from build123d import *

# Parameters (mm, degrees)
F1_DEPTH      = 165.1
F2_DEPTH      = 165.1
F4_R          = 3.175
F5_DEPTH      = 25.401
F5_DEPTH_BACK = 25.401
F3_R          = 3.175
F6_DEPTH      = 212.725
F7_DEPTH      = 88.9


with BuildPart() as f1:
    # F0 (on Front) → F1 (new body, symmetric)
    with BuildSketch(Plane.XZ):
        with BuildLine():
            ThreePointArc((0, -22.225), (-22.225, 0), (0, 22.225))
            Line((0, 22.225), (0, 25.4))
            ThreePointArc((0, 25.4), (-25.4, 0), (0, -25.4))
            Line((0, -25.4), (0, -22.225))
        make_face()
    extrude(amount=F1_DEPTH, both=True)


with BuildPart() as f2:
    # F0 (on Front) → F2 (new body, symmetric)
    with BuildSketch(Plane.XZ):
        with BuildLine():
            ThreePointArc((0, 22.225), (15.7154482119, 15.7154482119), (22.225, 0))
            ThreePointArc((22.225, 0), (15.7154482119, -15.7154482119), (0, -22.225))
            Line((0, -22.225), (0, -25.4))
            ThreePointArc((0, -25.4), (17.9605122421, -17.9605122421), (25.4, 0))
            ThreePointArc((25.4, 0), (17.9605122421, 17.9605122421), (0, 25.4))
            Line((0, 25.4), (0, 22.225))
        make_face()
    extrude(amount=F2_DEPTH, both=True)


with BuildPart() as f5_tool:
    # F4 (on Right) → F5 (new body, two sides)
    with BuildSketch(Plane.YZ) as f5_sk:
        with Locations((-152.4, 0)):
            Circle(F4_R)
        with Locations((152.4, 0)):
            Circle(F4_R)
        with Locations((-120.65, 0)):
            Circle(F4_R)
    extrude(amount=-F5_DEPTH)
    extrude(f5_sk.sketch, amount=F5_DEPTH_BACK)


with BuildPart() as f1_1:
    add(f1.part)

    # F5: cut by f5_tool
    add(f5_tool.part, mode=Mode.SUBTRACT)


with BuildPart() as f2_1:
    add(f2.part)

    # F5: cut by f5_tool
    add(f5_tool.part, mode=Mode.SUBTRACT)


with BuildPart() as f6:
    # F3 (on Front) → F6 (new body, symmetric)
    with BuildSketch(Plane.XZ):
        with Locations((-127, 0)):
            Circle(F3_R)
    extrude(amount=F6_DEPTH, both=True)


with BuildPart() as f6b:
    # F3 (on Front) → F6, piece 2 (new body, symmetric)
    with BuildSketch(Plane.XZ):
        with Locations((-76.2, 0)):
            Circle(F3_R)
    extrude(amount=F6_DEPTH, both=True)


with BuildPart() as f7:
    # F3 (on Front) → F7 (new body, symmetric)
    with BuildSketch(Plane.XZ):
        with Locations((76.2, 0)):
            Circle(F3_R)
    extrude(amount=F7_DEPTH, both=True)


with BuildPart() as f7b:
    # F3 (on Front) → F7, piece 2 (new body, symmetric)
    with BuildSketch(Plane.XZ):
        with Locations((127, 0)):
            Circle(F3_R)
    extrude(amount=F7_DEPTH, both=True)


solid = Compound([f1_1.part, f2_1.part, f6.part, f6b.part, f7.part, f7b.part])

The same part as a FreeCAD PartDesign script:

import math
import FreeCAD as App
import Part
import Sketcher
Q = App.Units.Quantity

doc = App.newDocument("Part")
body = doc.addObject("PartDesign::Body", "Body")

# Sketch on XZ plane
sketch1 = body.newObject("Sketcher::SketchObject", "Sketch")
sketch1.AttachmentSupport = (doc.getObject("XZ_Plane"), [""])
sketch1.MapMode = "FlatFace"
sketch1.addGeometry(Part.ArcOfCircle(Part.Circle(App.Vector(0, 0, 0), App.Vector(0, 0, 1), 22.2), math.radians(90), math.radians(270)), False)
sketch1.addGeometry(Part.LineSegment(App.Vector(0, 22.2, 0), App.Vector(0, 25.4, 0)), False)
sketch1.addGeometry(Part.ArcOfCircle(Part.Circle(App.Vector(0, 0, 0), App.Vector(0, 0, 1), 25.4), math.radians(90), math.radians(270)), False)
sketch1.addGeometry(Part.LineSegment(App.Vector(0, -25.4, 0), App.Vector(0, -22.2, 0)), False)
sketch1.addConstraint(Sketcher.Constraint("Coincident", 0, 1, 1, 1))
sketch1.addConstraint(Sketcher.Constraint("Coincident", 1, 2, 2, 1))
sketch1.addConstraint(Sketcher.Constraint("Coincident", 2, 2, 3, 1))
sketch1.addConstraint(Sketcher.Constraint("Coincident", 3, 2, 0, 2))
sketch1.addConstraint(Sketcher.Constraint("Vertical", 1))
sketch1.addConstraint(Sketcher.Constraint("Vertical", 3))
sketch1.addConstraint(Sketcher.Constraint("Coincident", 0, 3, -1, 1))
sketch1.addConstraint(Sketcher.Constraint("Coincident", 2, 3, -1, 1))
sketch1.addConstraint(Sketcher.Constraint("PointOnObject", 0, 1, -2))
sketch1.addConstraint(Sketcher.Constraint("PointOnObject", 2, 2, -2))
sketch1.addConstraint(Sketcher.Constraint("Radius", 2, Q("1 in")))
sketch1.addConstraint(Sketcher.Constraint("Radius", 0, Q("0.875 in")))
pad1 = body.newObject("PartDesign::Pad", "Pad")
pad1.Profile = sketch1
pad1.Length = Q("13 in")
pad1.Midplane = True
body2 = doc.addObject("PartDesign::Body", "Body001")

# Sketch on XZ plane
sketch2 = body2.newObject("Sketcher::SketchObject", "Sketch001")
sketch2.AttachmentSupport = (doc.getObject("XZ_Plane001"), [""])
sketch2.MapMode = "FlatFace"
sketch2.addGeometry(Part.ArcOfCircle(Part.Circle(App.Vector(0, 0, 0), App.Vector(0, 0, 1), 22.2), math.radians(0), math.radians(90)), False)
sketch2.addGeometry(Part.ArcOfCircle(Part.Circle(App.Vector(0, 0, 0), App.Vector(0, 0, 1), 22.2), math.radians(-90), math.radians(0)), False)
sketch2.addGeometry(Part.LineSegment(App.Vector(0, -22.2, 0), App.Vector(0, -25.4, 0)), False)
sketch2.addGeometry(Part.ArcOfCircle(Part.Circle(App.Vector(0, 0, 0), App.Vector(0, 0, 1), 25.4), math.radians(-90), math.radians(0)), False)
sketch2.addGeometry(Part.ArcOfCircle(Part.Circle(App.Vector(0, 0, 0), App.Vector(0, 0, 1), 25.4), math.radians(0), math.radians(90)), False)
sketch2.addGeometry(Part.LineSegment(App.Vector(0, 25.4, 0), App.Vector(0, 22.2, 0)), False)
sketch2.addConstraint(Sketcher.Constraint("Tangent", 0, 1, 1, 2))
sketch2.addConstraint(Sketcher.Constraint("Coincident", 1, 1, 2, 1))
sketch2.addConstraint(Sketcher.Constraint("Coincident", 2, 2, 3, 1))
sketch2.addConstraint(Sketcher.Constraint("Tangent", 3, 2, 4, 1))
sketch2.addConstraint(Sketcher.Constraint("Coincident", 4, 2, 5, 1))
sketch2.addConstraint(Sketcher.Constraint("Coincident", 5, 2, 0, 2))
sketch2.addConstraint(Sketcher.Constraint("Vertical", 2))
sketch2.addConstraint(Sketcher.Constraint("Vertical", 5))
sketch2.addConstraint(Sketcher.Constraint("Coincident", 0, 3, -1, 1))
sketch2.addConstraint(Sketcher.Constraint("Coincident", 3, 3, -1, 1))
sketch2.addConstraint(Sketcher.Constraint("Equal", 0, 1))
sketch2.addConstraint(Sketcher.Constraint("Equal", 3, 4))
sketch2.addConstraint(Sketcher.Constraint("PointOnObject", 0, 1, -1))
sketch2.addConstraint(Sketcher.Constraint("PointOnObject", 1, 1, -2))
sketch2.addConstraint(Sketcher.Constraint("PointOnObject", 3, 2, -1))
sketch2.addConstraint(Sketcher.Constraint("PointOnObject", 4, 2, -2))
sketch2.addConstraint(Sketcher.Constraint("Radius", 3, Q("1 in")))
sketch2.addConstraint(Sketcher.Constraint("Radius", 0, Q("0.875 in")))
pad2 = body2.newObject("PartDesign::Pad", "Pad001")
pad2.Profile = sketch2
pad2.Length = Q("13 in")
pad2.Midplane = True
body3 = doc.addObject("PartDesign::Body", "Body002")
body3.AllowCompound = True

# Sketch on YZ plane
sketch3 = body3.newObject("Sketcher::SketchObject", "Sketch002")
sketch3.AttachmentSupport = (doc.getObject("YZ_Plane002"), [""])
sketch3.MapMode = "FlatFace"
sketch3.addGeometry(Part.Circle(App.Vector(-152.4, 0, 0), App.Vector(0, 0, 1), 3.2), False)
sketch3.addGeometry(Part.Circle(App.Vector(152.4, 0, 0), App.Vector(0, 0, 1), 3.2), False)
sketch3.addGeometry(Part.Circle(App.Vector(-120.7, 0, 0), App.Vector(0, 0, 1), 3.2), False)
sketch3.addConstraint(Sketcher.Constraint("Equal", 0, 1))
sketch3.addConstraint(Sketcher.Constraint("Equal", 1, 2))
sketch3.addConstraint(Sketcher.Constraint("Symmetric", 0, 3, 1, 3, -1, 1))
sketch3.addConstraint(Sketcher.Constraint("PointOnObject", 0, 3, -1))
sketch3.addConstraint(Sketcher.Constraint("PointOnObject", 2, 3, -1))
sketch3.addConstraint(Sketcher.Constraint("Diameter", 0, Q("0.25 in")))
sketch3.addConstraint(Sketcher.Constraint("DistanceX", 0, 3, -1, 1, Q("6 in")))
sketch3.addConstraint(Sketcher.Constraint("DistanceX", 2, 3, -1, 1, Q("4.75 in")))
pad3 = body3.newObject("PartDesign::Pad", "Pad002")
pad3.Profile = sketch3
pad3.Type = "TwoLengths"
pad3.Length = 25.401
pad3.Length2 = 25.401
pad3.Reversed = True
doc.recompute()

body4 = doc.addObject("PartDesign::Body", "Body003")
body4.BaseFeature = body3
boolean = body.newObject("PartDesign::Boolean", "Boolean")
boolean.Type = "Cut"
boolean.addObjects([body4])
doc.recompute()

boolean2 = body2.newObject("PartDesign::Boolean", "Boolean001")
boolean2.Type = "Cut"
boolean2.addObjects([body3])
body5 = doc.addObject("PartDesign::Body", "Body004")

# Sketch on XZ plane
sketch4 = body5.newObject("Sketcher::SketchObject", "Sketch003")
sketch4.AttachmentSupport = (doc.getObject("XZ_Plane004"), [""])
sketch4.MapMode = "FlatFace"
sketch4.addGeometry(Part.Circle(App.Vector(-127, 0, 0), App.Vector(0, 0, 1), 3.2), False)
sketch4.addConstraint(Sketcher.Constraint("PointOnObject", 0, 3, -1))
sketch4.addConstraint(Sketcher.Constraint("Diameter", 0, Q("0.25 in")))
sketch4.addConstraint(Sketcher.Constraint("DistanceX", 0, 3, -1, 1, Q("5 in")))
pad4 = body5.newObject("PartDesign::Pad", "Pad003")
pad4.Profile = sketch4
pad4.Length = Q("16.75 in")
pad4.Midplane = True
body6 = doc.addObject("PartDesign::Body", "Body005")

# Sketch on XZ plane
sketch5 = body6.newObject("Sketcher::SketchObject", "Sketch004")
sketch5.AttachmentSupport = (doc.getObject("XZ_Plane005"), [""])
sketch5.MapMode = "FlatFace"
sketch5.addGeometry(Part.Circle(App.Vector(-76.2, 0, 0), App.Vector(0, 0, 1), 3.2), False)
sketch5.addConstraint(Sketcher.Constraint("PointOnObject", 0, 3, -1))
sketch5.addConstraint(Sketcher.Constraint("Diameter", 0, Q("0.25 in")))
sketch5.addConstraint(Sketcher.Constraint("DistanceX", 0, 3, -1, 1, Q("3 in")))
pad5 = body6.newObject("PartDesign::Pad", "Pad004")
pad5.Profile = sketch5
pad5.Length = Q("16.75 in")
pad5.Midplane = True
body7 = doc.addObject("PartDesign::Body", "Body006")

# Sketch on XZ plane
sketch6 = body7.newObject("Sketcher::SketchObject", "Sketch005")
sketch6.AttachmentSupport = (doc.getObject("XZ_Plane006"), [""])
sketch6.MapMode = "FlatFace"
sketch6.addGeometry(Part.Circle(App.Vector(76.2, 0, 0), App.Vector(0, 0, 1), 3.2), False)
sketch6.addConstraint(Sketcher.Constraint("PointOnObject", 0, 3, -1))
sketch6.addConstraint(Sketcher.Constraint("Diameter", 0, Q("0.25 in")))
sketch6.addConstraint(Sketcher.Constraint("DistanceX", -1, 1, 0, 3, Q("3 in")))
pad6 = body7.newObject("PartDesign::Pad", "Pad005")
pad6.Profile = sketch6
pad6.Length = Q("7 in")
pad6.Midplane = True
body8 = doc.addObject("PartDesign::Body", "Body007")

# Sketch on XZ plane
sketch7 = body8.newObject("Sketcher::SketchObject", "Sketch006")
sketch7.AttachmentSupport = (doc.getObject("XZ_Plane007"), [""])
sketch7.MapMode = "FlatFace"
sketch7.addGeometry(Part.Circle(App.Vector(127, 0, 0), App.Vector(0, 0, 1), 3.2), False)
sketch7.addConstraint(Sketcher.Constraint("PointOnObject", 0, 3, -1))
sketch7.addConstraint(Sketcher.Constraint("Diameter", 0, Q("0.25 in")))
sketch7.addConstraint(Sketcher.Constraint("DistanceX", -1, 1, 0, 3, Q("5 in")))
pad7 = body8.newObject("PartDesign::Pad", "Pad006")
pad7.Profile = sketch7
pad7.Length = Q("7 in")
pad7.Midplane = True

doc.recompute()
